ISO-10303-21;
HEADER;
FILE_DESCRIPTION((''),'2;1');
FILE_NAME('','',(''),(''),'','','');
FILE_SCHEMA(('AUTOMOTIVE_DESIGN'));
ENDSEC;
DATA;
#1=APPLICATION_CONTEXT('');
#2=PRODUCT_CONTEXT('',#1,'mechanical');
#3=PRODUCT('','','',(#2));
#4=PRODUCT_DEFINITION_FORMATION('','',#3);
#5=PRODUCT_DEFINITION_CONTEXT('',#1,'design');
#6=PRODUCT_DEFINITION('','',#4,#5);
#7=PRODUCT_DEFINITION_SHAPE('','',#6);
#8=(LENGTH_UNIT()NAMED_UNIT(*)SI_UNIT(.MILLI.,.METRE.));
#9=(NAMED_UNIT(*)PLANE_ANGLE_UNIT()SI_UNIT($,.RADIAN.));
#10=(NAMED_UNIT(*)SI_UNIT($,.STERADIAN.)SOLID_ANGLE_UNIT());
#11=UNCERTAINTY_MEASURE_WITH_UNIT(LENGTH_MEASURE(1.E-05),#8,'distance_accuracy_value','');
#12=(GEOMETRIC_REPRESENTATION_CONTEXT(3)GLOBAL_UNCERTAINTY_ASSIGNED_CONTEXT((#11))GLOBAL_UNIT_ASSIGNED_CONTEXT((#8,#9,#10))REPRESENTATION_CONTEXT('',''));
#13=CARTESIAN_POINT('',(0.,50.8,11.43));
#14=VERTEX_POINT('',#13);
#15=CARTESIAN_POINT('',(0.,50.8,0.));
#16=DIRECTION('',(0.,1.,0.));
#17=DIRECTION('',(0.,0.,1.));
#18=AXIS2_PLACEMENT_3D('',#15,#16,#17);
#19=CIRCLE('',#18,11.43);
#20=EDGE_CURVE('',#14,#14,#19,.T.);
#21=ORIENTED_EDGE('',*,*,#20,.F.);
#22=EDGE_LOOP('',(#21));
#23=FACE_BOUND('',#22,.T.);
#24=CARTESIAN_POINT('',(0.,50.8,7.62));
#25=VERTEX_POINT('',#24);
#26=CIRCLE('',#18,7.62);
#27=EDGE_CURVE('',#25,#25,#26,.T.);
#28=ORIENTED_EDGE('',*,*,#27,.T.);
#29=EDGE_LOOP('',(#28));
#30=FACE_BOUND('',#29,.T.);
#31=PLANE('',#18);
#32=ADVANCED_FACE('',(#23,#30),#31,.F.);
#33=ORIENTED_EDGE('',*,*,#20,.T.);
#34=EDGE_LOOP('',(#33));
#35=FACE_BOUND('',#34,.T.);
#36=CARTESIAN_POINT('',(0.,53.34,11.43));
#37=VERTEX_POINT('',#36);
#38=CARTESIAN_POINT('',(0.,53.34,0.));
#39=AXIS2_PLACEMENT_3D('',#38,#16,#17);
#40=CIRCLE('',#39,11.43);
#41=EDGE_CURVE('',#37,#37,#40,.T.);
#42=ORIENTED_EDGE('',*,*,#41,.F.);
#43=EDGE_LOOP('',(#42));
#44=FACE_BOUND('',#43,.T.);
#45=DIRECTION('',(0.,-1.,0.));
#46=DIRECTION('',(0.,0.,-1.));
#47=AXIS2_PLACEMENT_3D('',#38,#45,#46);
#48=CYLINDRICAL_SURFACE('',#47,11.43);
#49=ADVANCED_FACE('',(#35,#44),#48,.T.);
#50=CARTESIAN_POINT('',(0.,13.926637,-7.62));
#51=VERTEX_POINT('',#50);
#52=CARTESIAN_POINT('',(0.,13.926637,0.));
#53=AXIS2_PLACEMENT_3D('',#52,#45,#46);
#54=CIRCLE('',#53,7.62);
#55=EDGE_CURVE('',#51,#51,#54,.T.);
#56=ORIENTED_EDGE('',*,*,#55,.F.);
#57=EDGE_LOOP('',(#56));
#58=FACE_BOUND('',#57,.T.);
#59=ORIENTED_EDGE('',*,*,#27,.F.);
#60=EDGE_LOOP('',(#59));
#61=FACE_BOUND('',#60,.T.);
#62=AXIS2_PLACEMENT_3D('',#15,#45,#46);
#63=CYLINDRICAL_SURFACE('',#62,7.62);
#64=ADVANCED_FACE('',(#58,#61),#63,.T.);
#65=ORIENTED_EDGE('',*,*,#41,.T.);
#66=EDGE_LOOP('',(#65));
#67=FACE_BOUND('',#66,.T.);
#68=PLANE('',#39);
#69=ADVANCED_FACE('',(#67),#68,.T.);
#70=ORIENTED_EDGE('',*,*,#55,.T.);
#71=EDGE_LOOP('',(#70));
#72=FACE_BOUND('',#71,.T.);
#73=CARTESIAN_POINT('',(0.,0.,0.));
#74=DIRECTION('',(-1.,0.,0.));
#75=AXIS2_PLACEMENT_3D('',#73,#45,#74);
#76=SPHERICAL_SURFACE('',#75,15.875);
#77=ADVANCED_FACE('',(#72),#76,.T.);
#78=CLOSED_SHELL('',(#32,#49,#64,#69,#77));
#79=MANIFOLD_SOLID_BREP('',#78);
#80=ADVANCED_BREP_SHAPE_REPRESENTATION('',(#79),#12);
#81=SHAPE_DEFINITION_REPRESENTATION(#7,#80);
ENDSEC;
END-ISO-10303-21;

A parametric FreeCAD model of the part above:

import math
import FreeCAD as App
import Part
import Sketcher
Q = App.Units.Quantity

doc = App.newDocument("Part")
params = doc.addObject("Spreadsheet::Sheet", "Params")
for row, (alias, value) in enumerate([
    ("sketch1_radius", "0.625 in"),
    ("revolution_angle", "360 deg"),
    ("sketch2_diameter", "0.6 in"),
    ("pad1_length", "2 in"),
    ("sketch3_diameter", "0.9 in"),
    ("pad2_length", "0.1 in"),
], start=1):
    params.set(f"A{row}", alias)
    params.set(f"B{row}", "=" + value)
    params.setAlias(f"B{row}", alias)

body = doc.addObject("PartDesign::Body", "Body")

# Sketch on XY plane
sketch1 = doc.addObject("Sketcher::SketchObject", "Sketch")
body.addObject(sketch1)
sketch1.AttachmentSupport = (doc.XY_Plane, [""])
sketch1.MapMode = "FlatFace"
sketch1.addGeometry([
    Part.LineSegment(App.Vector(0, 16, 0), App.Vector(0, -16, 0)),
    Part.ArcOfCircle(Part.Circle(App.Vector(0, 0, 0), App.Vector(0, 0, 1), 16), math.radians(-90), math.radians(90)),
], False)
sketch1.addConstraint([
    Sketcher.Constraint("Coincident", 0, 1, 1, 2),
    Sketcher.Constraint("Coincident", 1, 1, 0, 2),
    Sketcher.Constraint("Vertical", 0),
    Sketcher.Constraint("Coincident", 1, 3, -1, 1),
    Sketcher.Constraint("PointOnObject", 0, 1, -2),
    Sketcher.Constraint("Radius", 1, Q("0.625 in")),
])
sketch1.setExpression("Constraints[5]", "Params.sketch1_radius")
revolution = doc.addObject("PartDesign::Revolution", "Revolution")
body.addObject(revolution)
revolution.Profile = sketch1
revolution.ReferenceAxis = (sketch1, ["V_Axis"])
revolution.setExpression("Angle", "Params.revolution_angle")

# Sketch on XZ plane
sketch2 = doc.addObject("Sketcher::SketchObject", "Sketch001")
body.addObject(sketch2)
sketch2.AttachmentSupport = (doc.XZ_Plane, [""])
sketch2.MapMode = "FlatFace"
sketch2.addGeometry(Part.Circle(App.Vector(0, 0, 0), App.Vector(0, 0, 1), 8), False)
sketch2.addConstraint([
    Sketcher.Constraint("Coincident", 0, 3, -1, 1),
    Sketcher.Constraint("Diameter", 0, Q("0.6 in")),
])
sketch2.setExpression("Constraints[1]", "Params.sketch2_diameter")
pad1 = doc.addObject("PartDesign::Pad", "Pad")
body.addObject(pad1)
pad1.Profile = sketch2
pad1.setExpression("Length", "Params.pad1_length")
pad1.Reversed = True

# Sketch on XZ plane
sketch3 = doc.addObject("Sketcher::SketchObject", "Sketch002")
body.addObject(sketch3)
sketch3.AttachmentSupport = (doc.XZ_Plane, [""])
sketch3.MapMode = "FlatFace"
sketch3.AttachmentOffset = App.Placement(App.Vector(0, 0, -2 * 25.4), App.Rotation())
sketch3.addGeometry(Part.Circle(App.Vector(0, 0, 0), App.Vector(0, 0, 1), 11), False)
sketch3.addConstraint([
    Sketcher.Constraint("Coincident", 0, 3, -1, 1),
    Sketcher.Constraint("Diameter", 0, Q("0.9 in")),
])
sketch3.setExpression("Constraints[1]", "Params.sketch3_diameter")
pad2 = doc.addObject("PartDesign::Pad", "Pad001")
body.addObject(pad2)
pad2.Profile = sketch3
pad2.setExpression("Length", "Params.pad2_length")
pad2.Reversed = True

doc.recompute()
